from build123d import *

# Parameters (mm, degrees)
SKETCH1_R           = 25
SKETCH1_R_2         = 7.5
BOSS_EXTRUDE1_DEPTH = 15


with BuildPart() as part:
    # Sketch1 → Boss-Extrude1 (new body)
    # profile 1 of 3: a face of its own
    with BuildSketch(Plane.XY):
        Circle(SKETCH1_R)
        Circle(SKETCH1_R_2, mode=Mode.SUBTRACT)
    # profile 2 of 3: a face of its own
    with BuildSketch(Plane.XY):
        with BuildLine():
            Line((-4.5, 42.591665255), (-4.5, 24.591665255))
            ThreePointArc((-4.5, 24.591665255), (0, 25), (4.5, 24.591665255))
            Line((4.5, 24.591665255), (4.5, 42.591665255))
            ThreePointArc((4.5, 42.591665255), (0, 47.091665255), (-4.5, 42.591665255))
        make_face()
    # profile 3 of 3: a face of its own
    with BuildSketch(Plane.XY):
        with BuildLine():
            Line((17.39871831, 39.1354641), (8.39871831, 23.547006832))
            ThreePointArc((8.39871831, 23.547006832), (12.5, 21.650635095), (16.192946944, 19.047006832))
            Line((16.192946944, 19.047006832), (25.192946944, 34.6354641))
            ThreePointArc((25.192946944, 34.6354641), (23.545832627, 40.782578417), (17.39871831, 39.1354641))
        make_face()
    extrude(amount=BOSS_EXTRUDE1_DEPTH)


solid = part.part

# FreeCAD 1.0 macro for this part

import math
import FreeCAD as App
import Part
import Sketcher

V = App.Vector
Q = App.Units.Quantity

doc = App.newDocument("Part")
params = doc.addObject("Spreadsheet::Sheet", "Params")
for row, (alias, value) in enumerate([
    ("sketch1_diameter", "15 mm"),
    ("sketch1_radius", "25 mm"),
    ("sketch1_radius2", "4.5 mm"),
    ("sketch1_height", "18 mm"),
    ("sketch1_length", "18 mm"),
    ("pad1_length", "15 mm"),
], start=1):
    params.set(f"A{row}", alias)
    params.set(f"B{row}", "=" + value)
    params.setAlias(f"B{row}", alias)

body = doc.addObject("PartDesign::Body", "Body")

sketch1 = body.newObject("Sketcher::SketchObject", "Sketch")
sketch1.AttachmentSupport = (doc.getObject("XY_Plane"), [""])
sketch1.MapMode = "FlatFace"
sketch1.addGeometry([
    Part.LineSegment(V(16.2, 19, 0), V(25.2, 34.6, 0)),
    Part.ArcOfCircle(Part.Circle(V(21.3, 36.9, 0), V(0, 0, 1), 4.5), math.radians(-30), math.radians(150)),
    Part.LineSegment(V(17.4, 39.1, 0), V(8.4, 23.5, 0)),
    Part.ArcOfCircle(Part.Circle(V(0, 0, 0), V(0, 0, 1), 25), math.radians(70.37), math.radians(79.63)),
    Part.LineSegment(V(4.5, 24.6, 0), V(4.5, 42.6, 0)),
    Part.ArcOfCircle(Part.Circle(V(0, 42.6, 0), V(0, 0, 1), 4.5), math.radians(0), math.radians(180)),
    Part.LineSegment(V(-4.5, 42.6, 0), V(-4.5, 24.6, 0)),
    Part.ArcOfCircle(Part.Circle(V(0, 0, 0), V(0, 0, 1), 25), math.radians(100), math.radians(410)),
    Part.Circle(V(0, 0, 0), V(0, 0, 1), 7.5),
], False)
sketch1.addConstraint([
    Sketcher.Constraint("Tangent", 0, 2, 1, 1),
    Sketcher.Constraint("Tangent", 1, 2, 2, 1),
    Sketcher.Constraint("Coincident", 2, 2, 3, 1),
    Sketcher.Constraint("Coincident", 3, 2, 4, 1),
    Sketcher.Constraint("Tangent", 4, 2, 5, 1),
    Sketcher.Constraint("Tangent", 5, 2, 6, 1),
    Sketcher.Constraint("Coincident", 6, 2, 7, 1),
    Sketcher.Constraint("Coincident", 7, 2, 0, 1),
    Sketcher.Constraint("Vertical", 4),
    Sketcher.Constraint("Vertical", 6),
    Sketcher.Constraint("Coincident", 3, 3, -1, 1),
    Sketcher.Constraint("Coincident", 7, 3, -1, 1),
    Sketcher.Constraint("Coincident", 8, 3, -1, 1),
    Sketcher.Constraint("Equal", 1, 5),
    Sketcher.Constraint("Equal", 3, 7),
    Sketcher.Constraint("PointOnObject", 5, 3, -2),
    Sketcher.Constraint("Parallel", 0, 2),
    Sketcher.Constraint("Equal", 0, 2),
    Sketcher.Constraint("Diameter", 8, Q("15 mm")),
    Sketcher.Constraint("Radius", 3, Q("25 mm")),
    Sketcher.Constraint("Radius", 1, Q("4.5 mm")),
    Sketcher.Constraint("DistanceY", 4, 1, 4, 2, Q("18 mm")),
    Sketcher.Constraint("Angle", 0, Q("60 deg")),
    Sketcher.Constraint("Distance", 0, Q("18 mm")),
])
sketch1.setExpression("Constraints[18]", "Params.sketch1_diameter")
sketch1.setExpression("Constraints[19]", "Params.sketch1_radius")
sketch1.setExpression("Constraints[20]", "Params.sketch1_radius2")
sketch1.setExpression("Constraints[21]", "Params.sketch1_height")
sketch1.setExpression("Constraints[23]", "Params.sketch1_length")
pad1 = body.newObject("PartDesign::Pad", "Pad")
pad1.Profile = sketch1
pad1.setExpression("Length", "Params.pad1_length")

doc.recompute()
